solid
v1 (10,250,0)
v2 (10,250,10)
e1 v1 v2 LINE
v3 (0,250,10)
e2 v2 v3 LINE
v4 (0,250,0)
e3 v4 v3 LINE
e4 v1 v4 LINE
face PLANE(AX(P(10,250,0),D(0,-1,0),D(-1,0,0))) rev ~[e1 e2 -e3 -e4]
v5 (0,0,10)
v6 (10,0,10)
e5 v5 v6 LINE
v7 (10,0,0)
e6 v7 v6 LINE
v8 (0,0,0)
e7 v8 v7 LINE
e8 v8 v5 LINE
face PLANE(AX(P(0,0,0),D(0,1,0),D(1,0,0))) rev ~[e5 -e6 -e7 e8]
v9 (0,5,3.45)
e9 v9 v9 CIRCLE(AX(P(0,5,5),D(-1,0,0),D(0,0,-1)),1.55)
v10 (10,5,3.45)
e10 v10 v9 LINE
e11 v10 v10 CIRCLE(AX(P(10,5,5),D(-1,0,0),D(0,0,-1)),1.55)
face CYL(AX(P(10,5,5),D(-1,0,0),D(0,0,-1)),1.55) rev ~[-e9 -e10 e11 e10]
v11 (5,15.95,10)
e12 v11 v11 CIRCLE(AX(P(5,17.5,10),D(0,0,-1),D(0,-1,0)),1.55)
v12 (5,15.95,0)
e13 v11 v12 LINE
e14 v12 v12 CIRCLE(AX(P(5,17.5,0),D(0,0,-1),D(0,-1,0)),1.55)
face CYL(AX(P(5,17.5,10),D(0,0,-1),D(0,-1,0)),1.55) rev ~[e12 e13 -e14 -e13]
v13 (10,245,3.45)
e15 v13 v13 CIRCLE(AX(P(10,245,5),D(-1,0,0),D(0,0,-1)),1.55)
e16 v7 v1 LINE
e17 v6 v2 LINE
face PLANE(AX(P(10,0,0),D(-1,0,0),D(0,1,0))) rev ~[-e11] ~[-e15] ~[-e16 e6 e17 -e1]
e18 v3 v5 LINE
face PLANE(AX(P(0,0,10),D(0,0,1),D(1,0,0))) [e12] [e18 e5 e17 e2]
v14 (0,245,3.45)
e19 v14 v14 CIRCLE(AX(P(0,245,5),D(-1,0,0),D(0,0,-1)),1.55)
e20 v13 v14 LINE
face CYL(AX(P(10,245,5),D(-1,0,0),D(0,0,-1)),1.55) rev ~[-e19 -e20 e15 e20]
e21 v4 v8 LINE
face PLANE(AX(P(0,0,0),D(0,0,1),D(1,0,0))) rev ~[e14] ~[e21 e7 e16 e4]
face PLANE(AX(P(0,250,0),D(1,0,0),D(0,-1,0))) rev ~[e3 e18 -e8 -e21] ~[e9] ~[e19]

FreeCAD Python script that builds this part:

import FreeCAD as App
import Part
import Sketcher

doc = App.newDocument("Part")
body = doc.addObject("PartDesign::Body", "Body")

sketch1 = doc.addObject("Sketcher::SketchObject", "Sketch")
body.addObject(sketch1)
sketch1.AttachmentSupport = (doc.XY_Plane, [""])
sketch1.MapMode = "FlatFace"
sketch1.addGeometry(Part.LineSegment(App.Vector(0, 250, 0), App.Vector(0, 0, 0)), False)
sketch1.addGeometry(Part.LineSegment(App.Vector(0, 0, 0), App.Vector(10, 0, 0)), False)
sketch1.addGeometry(Part.LineSegment(App.Vector(10, 0, 0), App.Vector(10, 250, 0)), False)
sketch1.addGeometry(Part.LineSegment(App.Vector(10, 250, 0), App.Vector(0, 250, 0)), False)
sketch1.addConstraint(Sketcher.Constraint("Coincident", 0, 2, 1, 1))
sketch1.addConstraint(Sketcher.Constraint("Coincident", 1, 2, 2, 1))
sketch1.addConstraint(Sketcher.Constraint("Coincident", 2, 2, 3, 1))
sketch1.addConstraint(Sketcher.Constraint("Coincident", 3, 2, 0, 1))
sketch1.addConstraint(Sketcher.Constraint("Vertical", 0))
sketch1.addConstraint(Sketcher.Constraint("Horizontal", 1))
sketch1.addConstraint(Sketcher.Constraint("Vertical", 2))
sketch1.addConstraint(Sketcher.Constraint("Horizontal", 3))
sketch1.addConstraint(Sketcher.Constraint("Coincident", 0, 2, -1, 1))
sketch1.addConstraint(Sketcher.Constraint("DistanceX", 1, 1, 1, 2, 10.0))
sketch1.addConstraint(Sketcher.Constraint("DistanceY", 0, 2, 0, 1, 250.0))
pad1 = doc.addObject("PartDesign::Pad", "Pad")
body.addObject(pad1)
pad1.Profile = sketch1
pad1.Length = 10

sketch2 = doc.addObject("Sketcher::SketchObject", "Sketch001")
body.addObject(sketch2)
sketch2.AttachmentSupport = (doc.YZ_Plane, [""])
sketch2.MapMode = "FlatFace"
sketch2.AttachmentOffset = App.Placement(App.Vector(0, 0, 10), App.Rotation())
sketch2.addGeometry(Part.Circle(App.Vector(5, 5, 0), App.Vector(0, 0, 1), 1.55), False)
sketch2.addGeometry(Part.Circle(App.Vector(245, 5, 0), App.Vector(0, 0, 1), 1.55), False)
sketch2.addConstraint(Sketcher.Constraint("Equal", 0, 1))
sketch2.addConstraint(Sketcher.Constraint("Horizontal", 0, 3, 1, 3))
sketch2.addConstraint(Sketcher.Constraint("Diameter", 0, 3.1))
sketch2.addConstraint(Sketcher.Constraint("DistanceX", -1, 1, 0, 3, 5.0))
sketch2.addConstraint(Sketcher.Constraint("DistanceY", -1, 1, 0, 3, 5.0))
sketch2.addConstraint(Sketcher.Constraint("DistanceX", -1, 1, 1, 3, 245.0))
doc.recompute()
hole = doc.addObject("PartDesign::Hole", "Hole")
body.addObject(hole)
hole.Profile = sketch2
hole.ThreadType = "None"
hole.Diameter = 3.1
hole.DepthType = "ThroughAll"

sketch3 = doc.addObject("Sketcher::SketchObject", "Sketch002")
body.addObject(sketch3)
sketch3.AttachmentSupport = (doc.XY_Plane, [""])
sketch3.MapMode = "FlatFace"
sketch3.AttachmentOffset = App.Placement(App.Vector(0, 0, 10), App.Rotation())
sketch3.addGeometry(Part.Circle(App.Vector(5, 17.5, 0), App.Vector(0, 0, 1), 1.55), False)
sketch3.addConstraint(Sketcher.Constraint("Diameter", 0, 3.1))
sketch3.addConstraint(Sketcher.Constraint("DistanceX", -1, 1, 0, 3, 5.0))
sketch3.addConstraint(Sketcher.Constraint("DistanceY", -1, 1, 0, 3, 17.5))
doc.recompute()
hole2 = doc.addObject("PartDesign::Hole", "Hole001")
body.addObject(hole2)
hole2.Profile = sketch3
hole2.ThreadType = "None"
hole2.Diameter = 3.1
hole2.DepthType = "ThroughAll"

doc.recompute()
